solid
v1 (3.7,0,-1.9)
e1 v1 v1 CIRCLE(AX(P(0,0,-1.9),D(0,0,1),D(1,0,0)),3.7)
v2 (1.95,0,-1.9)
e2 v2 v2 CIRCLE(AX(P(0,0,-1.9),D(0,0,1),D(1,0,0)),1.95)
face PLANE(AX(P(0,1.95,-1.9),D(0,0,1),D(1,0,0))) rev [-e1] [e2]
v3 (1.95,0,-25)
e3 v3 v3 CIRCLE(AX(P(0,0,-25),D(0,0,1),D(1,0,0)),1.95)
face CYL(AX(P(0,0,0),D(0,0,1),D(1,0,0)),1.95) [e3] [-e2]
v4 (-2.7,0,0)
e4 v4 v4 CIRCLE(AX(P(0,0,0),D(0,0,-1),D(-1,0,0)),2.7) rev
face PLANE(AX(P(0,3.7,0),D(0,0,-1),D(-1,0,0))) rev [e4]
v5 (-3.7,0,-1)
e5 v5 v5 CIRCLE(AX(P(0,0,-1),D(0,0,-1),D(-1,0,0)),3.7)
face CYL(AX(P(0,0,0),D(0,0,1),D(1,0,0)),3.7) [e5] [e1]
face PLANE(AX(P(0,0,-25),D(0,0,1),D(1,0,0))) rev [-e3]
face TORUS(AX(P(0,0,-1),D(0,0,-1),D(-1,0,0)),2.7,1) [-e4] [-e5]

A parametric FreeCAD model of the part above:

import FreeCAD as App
import Part
import Sketcher

V = App.Vector
Q = App.Units.Quantity


def edges_at(feature, points):
    """Names of the edges that pass closest to the given points."""
    edges = feature.Shape.Edges
    near = lambda p: min(range(len(edges)), key=lambda i: edges[i].distToShape(Part.Vertex(*p))[0])
    return sorted({f"Edge{near(p) + 1}" for p in points})


def add_polygon(sketch, points):
    """Adds a closed chain of lines whose ends are joined by coincident constraints."""
    first, n = sketch.GeometryCount, len(points)
    for a, b in zip(points, points[1:] + points[:1]):
        sketch.addGeometry(Part.LineSegment(App.Vector(*a, 0), App.Vector(*b, 0)), False)
    for i in range(n):
        sketch.addConstraint(Sketcher.Constraint("Coincident", first + i, 2, first + (i + 1) % n, 1))

doc = App.newDocument("Part")
body = doc.addObject("PartDesign::Body", "Body")

# Sketch on YZ plane
sketch1 = body.newObject("Sketcher::SketchObject", "Sketch")
sketch1.AttachmentSupport = (doc.getObject("YZ_Plane"), [""])
sketch1.MapMode = "FlatFace"
add_polygon(sketch1, [(1.9, -1.9), (3.7, -1.9), (3.7, 0), (0, 0), (0, -25), (1.9, -25)])  # lines 0-5
sketch1.addConstraint(Sketcher.Constraint("Horizontal", 0))
sketch1.addConstraint(Sketcher.Constraint("Vertical", 1))
sketch1.addConstraint(Sketcher.Constraint("Horizontal", 2))
sketch1.addConstraint(Sketcher.Constraint("Vertical", 3))
sketch1.addConstraint(Sketcher.Constraint("Horizontal", 4))
sketch1.addConstraint(Sketcher.Constraint("Vertical", 5))
sketch1.addConstraint(Sketcher.Constraint("Coincident", 2, 2, -1, 1))
sketch1.addConstraint(Sketcher.Constraint("DistanceY", 3, 2, 3, 1, Q("25 mm")))
sketch1.addConstraint(Sketcher.Constraint("DistanceX", 2, 2, 2, 1, Q("3.7 mm")))
sketch1.addConstraint(Sketcher.Constraint("DistanceY", 1, 1, 1, 2, Q("1.9 mm")))
sketch1.addConstraint(Sketcher.Constraint("DistanceX", 0, 1, 0, 2, Q("1.75 mm")))
revolution = body.newObject("PartDesign::Revolution", "Revolution")
revolution.Profile = sketch1
revolution.ReferenceAxis = (sketch1, ["V_Axis"])
revolution.Angle = 360
doc.recompute()

fillet = body.newObject("PartDesign::Fillet", "Fillet")
fillet.Base = (revolution, edges_at(revolution, [(-3.7, 0, 0)]))
fillet.Radius = 1

doc.recompute()
